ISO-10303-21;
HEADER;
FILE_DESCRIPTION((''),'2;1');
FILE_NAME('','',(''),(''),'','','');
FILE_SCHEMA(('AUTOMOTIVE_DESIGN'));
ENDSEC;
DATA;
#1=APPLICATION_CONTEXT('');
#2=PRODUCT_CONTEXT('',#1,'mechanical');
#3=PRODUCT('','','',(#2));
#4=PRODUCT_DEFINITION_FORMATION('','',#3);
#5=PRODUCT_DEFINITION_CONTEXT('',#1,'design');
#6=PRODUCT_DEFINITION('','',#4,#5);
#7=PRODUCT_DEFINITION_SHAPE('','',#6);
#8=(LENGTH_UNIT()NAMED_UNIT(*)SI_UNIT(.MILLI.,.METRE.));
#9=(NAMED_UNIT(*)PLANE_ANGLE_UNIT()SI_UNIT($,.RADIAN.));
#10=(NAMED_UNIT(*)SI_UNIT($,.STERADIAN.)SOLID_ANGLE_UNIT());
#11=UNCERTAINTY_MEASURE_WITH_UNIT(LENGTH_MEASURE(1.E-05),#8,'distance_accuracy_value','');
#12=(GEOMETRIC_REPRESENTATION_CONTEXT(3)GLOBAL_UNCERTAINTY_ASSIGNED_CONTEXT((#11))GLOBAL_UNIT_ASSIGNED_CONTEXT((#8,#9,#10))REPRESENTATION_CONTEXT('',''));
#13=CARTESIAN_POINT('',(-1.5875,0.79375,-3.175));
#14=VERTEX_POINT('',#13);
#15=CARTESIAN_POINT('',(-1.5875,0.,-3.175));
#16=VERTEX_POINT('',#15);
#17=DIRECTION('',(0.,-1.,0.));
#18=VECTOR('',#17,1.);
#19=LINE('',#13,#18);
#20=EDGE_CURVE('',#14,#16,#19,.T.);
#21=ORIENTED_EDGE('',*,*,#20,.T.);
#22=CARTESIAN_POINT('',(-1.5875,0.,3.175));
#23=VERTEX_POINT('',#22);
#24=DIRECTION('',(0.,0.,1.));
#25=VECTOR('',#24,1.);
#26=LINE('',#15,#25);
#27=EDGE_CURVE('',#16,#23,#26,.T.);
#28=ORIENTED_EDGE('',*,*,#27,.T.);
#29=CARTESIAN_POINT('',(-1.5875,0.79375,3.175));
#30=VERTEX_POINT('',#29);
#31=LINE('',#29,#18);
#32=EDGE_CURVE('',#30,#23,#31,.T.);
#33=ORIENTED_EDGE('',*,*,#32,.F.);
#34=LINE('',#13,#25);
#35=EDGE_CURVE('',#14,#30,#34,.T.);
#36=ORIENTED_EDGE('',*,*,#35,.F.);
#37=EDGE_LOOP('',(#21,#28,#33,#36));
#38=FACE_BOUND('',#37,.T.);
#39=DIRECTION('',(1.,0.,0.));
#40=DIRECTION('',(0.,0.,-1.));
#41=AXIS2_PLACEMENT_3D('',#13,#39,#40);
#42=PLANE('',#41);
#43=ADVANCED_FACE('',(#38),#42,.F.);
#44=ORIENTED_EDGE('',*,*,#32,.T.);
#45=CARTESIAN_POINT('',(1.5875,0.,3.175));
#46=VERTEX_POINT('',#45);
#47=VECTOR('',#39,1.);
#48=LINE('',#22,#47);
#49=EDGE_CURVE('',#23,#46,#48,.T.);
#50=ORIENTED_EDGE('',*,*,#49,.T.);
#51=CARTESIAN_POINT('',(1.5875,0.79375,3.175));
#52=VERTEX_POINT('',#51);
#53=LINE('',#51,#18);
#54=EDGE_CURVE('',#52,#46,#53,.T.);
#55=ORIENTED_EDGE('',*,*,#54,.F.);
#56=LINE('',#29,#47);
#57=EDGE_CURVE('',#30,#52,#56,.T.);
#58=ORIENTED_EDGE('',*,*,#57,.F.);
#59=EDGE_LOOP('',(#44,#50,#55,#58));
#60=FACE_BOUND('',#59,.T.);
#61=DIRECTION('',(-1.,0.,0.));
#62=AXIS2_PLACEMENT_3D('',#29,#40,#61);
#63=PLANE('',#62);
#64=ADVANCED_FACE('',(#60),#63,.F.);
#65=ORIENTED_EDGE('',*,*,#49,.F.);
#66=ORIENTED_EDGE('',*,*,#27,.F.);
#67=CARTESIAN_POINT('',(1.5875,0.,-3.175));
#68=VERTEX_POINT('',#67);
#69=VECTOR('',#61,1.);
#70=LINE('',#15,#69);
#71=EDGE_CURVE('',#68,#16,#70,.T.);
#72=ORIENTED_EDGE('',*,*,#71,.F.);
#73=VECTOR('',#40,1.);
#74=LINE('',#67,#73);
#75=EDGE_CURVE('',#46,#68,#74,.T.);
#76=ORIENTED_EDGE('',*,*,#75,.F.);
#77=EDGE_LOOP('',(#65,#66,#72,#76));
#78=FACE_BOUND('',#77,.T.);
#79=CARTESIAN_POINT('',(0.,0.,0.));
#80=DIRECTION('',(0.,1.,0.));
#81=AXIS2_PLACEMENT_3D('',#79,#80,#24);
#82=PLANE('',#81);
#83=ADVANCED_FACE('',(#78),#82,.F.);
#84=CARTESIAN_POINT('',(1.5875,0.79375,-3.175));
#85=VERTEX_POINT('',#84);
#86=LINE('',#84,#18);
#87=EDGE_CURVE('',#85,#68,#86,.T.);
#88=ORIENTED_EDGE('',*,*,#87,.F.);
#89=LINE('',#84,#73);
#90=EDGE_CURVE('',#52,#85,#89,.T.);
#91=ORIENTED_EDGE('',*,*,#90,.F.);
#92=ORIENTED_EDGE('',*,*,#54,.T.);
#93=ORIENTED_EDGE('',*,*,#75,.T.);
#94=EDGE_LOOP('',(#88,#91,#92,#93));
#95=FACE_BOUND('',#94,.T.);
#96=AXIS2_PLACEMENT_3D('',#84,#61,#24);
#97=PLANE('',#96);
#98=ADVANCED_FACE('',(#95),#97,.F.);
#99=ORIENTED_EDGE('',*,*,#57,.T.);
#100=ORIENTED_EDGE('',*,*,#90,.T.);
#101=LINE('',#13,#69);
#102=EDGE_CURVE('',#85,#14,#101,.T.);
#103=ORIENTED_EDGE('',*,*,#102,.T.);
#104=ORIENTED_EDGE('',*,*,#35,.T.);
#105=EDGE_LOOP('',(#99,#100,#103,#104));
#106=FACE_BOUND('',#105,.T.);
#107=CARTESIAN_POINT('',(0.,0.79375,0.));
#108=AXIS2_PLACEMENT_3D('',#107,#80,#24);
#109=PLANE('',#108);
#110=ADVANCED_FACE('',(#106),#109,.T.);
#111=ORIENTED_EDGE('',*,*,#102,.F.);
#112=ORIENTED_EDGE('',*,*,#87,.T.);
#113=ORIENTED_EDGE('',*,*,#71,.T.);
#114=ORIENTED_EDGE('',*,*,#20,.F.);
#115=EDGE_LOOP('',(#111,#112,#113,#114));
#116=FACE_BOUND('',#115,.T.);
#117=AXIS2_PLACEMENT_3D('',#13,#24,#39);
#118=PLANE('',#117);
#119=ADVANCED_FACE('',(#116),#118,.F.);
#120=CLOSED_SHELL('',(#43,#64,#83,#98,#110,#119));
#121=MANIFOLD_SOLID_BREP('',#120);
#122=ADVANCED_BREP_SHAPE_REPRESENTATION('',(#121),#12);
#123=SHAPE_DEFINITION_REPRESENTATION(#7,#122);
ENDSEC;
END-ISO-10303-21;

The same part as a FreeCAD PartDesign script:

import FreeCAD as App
import Part
import Sketcher

V = App.Vector
Q = App.Units.Quantity

doc = App.newDocument("Part")
body = doc.addObject("PartDesign::Body", "Body")

sketch1 = body.newObject("Sketcher::SketchObject", "Sketch")
sketch1.AttachmentSupport = (doc.getObject("XZ_Plane"), [""])
sketch1.MapMode = "FlatFace"
sketch1.addGeometry([
    Part.LineSegment(V(-1.6, -3.2, 0), V(-1.6, 3.2, 0)),
    Part.LineSegment(V(-1.6, 3.2, 0), V(1.6, 3.2, 0)),
    Part.LineSegment(V(1.6, 3.2, 0), V(1.6, -3.2, 0)),
    Part.LineSegment(V(1.6, -3.2, 0), V(-1.6, -3.2, 0)),
], False)
sketch1.addConstraint([
    Sketcher.Constraint("Coincident", 0, 2, 1, 1),
    Sketcher.Constraint("Coincident", 1, 2, 2, 1),
    Sketcher.Constraint("Coincident", 2, 2, 3, 1),
    Sketcher.Constraint("Coincident", 3, 2, 0, 1),
    Sketcher.Constraint("Vertical", 0),
    Sketcher.Constraint("Horizontal", 1),
    Sketcher.Constraint("Vertical", 2),
    Sketcher.Constraint("Horizontal", 3),
    Sketcher.Constraint("Symmetric", 0, 2, 2, 2, -1, 1),
    Sketcher.Constraint("DistanceY", 0, 1, 0, 2, Q("0.25 in")),
    Sketcher.Constraint("DistanceX", 1, 1, 1, 2, Q("0.125 in")),
])
pad1 = body.newObject("PartDesign::Pad", "Pad")
pad1.Profile = sketch1
pad1.Length = Q("0.03125 in")
pad1.Reversed = True

doc.recompute()
